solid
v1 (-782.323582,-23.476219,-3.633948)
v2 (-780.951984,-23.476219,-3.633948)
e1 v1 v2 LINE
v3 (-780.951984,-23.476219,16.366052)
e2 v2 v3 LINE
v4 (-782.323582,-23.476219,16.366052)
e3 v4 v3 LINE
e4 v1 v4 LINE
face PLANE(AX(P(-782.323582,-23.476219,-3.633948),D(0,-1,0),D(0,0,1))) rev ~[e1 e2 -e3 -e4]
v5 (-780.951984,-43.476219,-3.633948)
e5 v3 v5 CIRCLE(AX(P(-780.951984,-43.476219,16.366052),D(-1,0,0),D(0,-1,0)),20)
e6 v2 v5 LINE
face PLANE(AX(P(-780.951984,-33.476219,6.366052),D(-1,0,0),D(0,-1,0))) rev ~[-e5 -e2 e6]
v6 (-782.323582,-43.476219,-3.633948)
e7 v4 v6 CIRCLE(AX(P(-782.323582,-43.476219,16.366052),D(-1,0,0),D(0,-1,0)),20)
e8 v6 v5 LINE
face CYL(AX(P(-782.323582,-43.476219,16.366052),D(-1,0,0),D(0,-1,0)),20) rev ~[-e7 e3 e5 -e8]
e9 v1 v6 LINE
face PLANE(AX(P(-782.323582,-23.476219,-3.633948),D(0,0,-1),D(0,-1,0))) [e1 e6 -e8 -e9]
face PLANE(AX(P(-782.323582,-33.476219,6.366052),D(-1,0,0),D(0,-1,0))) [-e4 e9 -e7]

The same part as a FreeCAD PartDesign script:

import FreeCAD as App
import Part
import Sketcher

V = App.Vector


def add_polygon(sketch, points):
    """Adds a closed chain of lines whose ends are joined by coincident constraints."""
    first, n = sketch.GeometryCount, len(points)
    for a, b in zip(points, points[1:] + points[:1]):
        sketch.addGeometry(Part.LineSegment(App.Vector(*a, 0), App.Vector(*b, 0)), False)
    for i in range(n):
        sketch.addConstraint(Sketcher.Constraint("Coincident", first + i, 2, first + (i + 1) % n, 1))

doc = App.newDocument("Part")
body = doc.addObject("PartDesign::Body", "Body")

sketch1 = body.newObject("Sketcher::SketchObject", "Sketch")
sketch1.AttachmentSupport = (doc.getObject("YZ_Plane"), [""])
sketch1.MapMode = "FlatFace"
sketch1.AttachmentOffset = App.Placement(V(0, 0, -782.323582), App.Rotation())
sketch1.addGeometry(Part.Circle(V(-43.476219, 16.366052, 0), V(0, 0, 1), 20), False)
sketch1.addConstraint([
    Sketcher.Constraint("Diameter", 0, 40.0),
    Sketcher.Constraint("DistanceX", 0, 3, -1, 1, 43.476219),
    Sketcher.Constraint("DistanceY", -1, 1, 0, 3, 16.366052),
])
pad1 = body.newObject("PartDesign::Pad", "Pad")
pad1.Profile = sketch1
pad1.Length = 1.371598
body2 = doc.addObject("PartDesign::Body", "Body001")

sketch2 = body2.newObject("Sketcher::SketchObject", "Sketch001")
sketch2.AttachmentSupport = (doc.getObject("YZ_Plane001"), [""])
sketch2.MapMode = "FlatFace"
sketch2.AttachmentOffset = App.Placement(V(0, 0, -782.323582), App.Rotation())
add_polygon(sketch2, [(-23.476219, 16.366052), (-23.476219, -3.633948), (-43.476219, -3.633948), (-43.476219, 16.366052)])
sketch2.addConstraint([
    Sketcher.Constraint("Vertical", 0),
    Sketcher.Constraint("Horizontal", 1),
    Sketcher.Constraint("Vertical", 2),
    Sketcher.Constraint("Horizontal", 3),
    Sketcher.Constraint("Equal", 3, 0),
    Sketcher.Constraint("DistanceX", 1, 2, 1, 1, 20.0),
    Sketcher.Constraint("DistanceX", 0, 2, -1, 1, 23.476219),
    Sketcher.Constraint("DistanceY", 0, 2, -1, 1, 3.633948),
])
pad2 = body2.newObject("PartDesign::Pad", "Pad001")
pad2.Profile = sketch2
pad2.Length = 1.371598
doc.recompute()

boolean = body2.newObject("PartDesign::Boolean", "Boolean")
boolean.Type = "Cut"
boolean.addObjects([body])

doc.recompute()
